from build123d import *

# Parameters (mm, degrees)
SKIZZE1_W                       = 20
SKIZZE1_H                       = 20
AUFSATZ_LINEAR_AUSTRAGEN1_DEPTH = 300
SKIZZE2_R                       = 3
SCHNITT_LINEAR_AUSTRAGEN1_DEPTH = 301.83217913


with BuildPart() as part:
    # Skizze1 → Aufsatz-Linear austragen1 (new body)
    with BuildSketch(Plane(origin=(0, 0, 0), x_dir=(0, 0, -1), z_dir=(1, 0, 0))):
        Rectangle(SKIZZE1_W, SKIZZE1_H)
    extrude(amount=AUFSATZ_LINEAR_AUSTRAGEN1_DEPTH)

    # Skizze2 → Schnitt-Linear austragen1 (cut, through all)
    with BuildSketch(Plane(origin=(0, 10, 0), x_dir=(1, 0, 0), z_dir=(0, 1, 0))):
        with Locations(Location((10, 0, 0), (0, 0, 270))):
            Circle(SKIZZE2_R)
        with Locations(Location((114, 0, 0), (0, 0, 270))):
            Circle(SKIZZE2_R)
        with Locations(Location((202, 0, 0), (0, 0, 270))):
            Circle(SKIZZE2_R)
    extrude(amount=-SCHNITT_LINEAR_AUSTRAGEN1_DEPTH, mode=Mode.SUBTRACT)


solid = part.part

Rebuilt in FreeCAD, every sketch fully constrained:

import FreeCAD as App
import Part
import Sketcher
Q = App.Units.Quantity


def add_polygon(sketch, points):
    """Adds a closed chain of lines whose ends are joined by coincident constraints."""
    first, n = sketch.GeometryCount, len(points)
    for a, b in zip(points, points[1:] + points[:1]):
        sketch.addGeometry(Part.LineSegment(App.Vector(*a, 0), App.Vector(*b, 0)), False)
    for i in range(n):
        sketch.addConstraint(Sketcher.Constraint("Coincident", first + i, 2, first + (i + 1) % n, 1))

doc = App.newDocument("Part")
body = doc.addObject("PartDesign::Body", "Body")

sketch1 = body.newObject("Sketcher::SketchObject", "Sketch")
sketch1.AttachmentSupport = (doc.getObject("YZ_Plane"), [""])
sketch1.MapMode = "FlatFace"
add_polygon(sketch1, [(10, 10), (-10, 10), (-10, -10), (10, -10)])
sketch1.addConstraint([
    Sketcher.Constraint("Horizontal", 0),
    Sketcher.Constraint("Vertical", 1),
    Sketcher.Constraint("Horizontal", 2),
    Sketcher.Constraint("Vertical", 3),
    Sketcher.Constraint("Symmetric", 0, 2, 2, 2, -1, 1),
    Sketcher.Constraint("Equal", 2, 1),
    Sketcher.Constraint("DistanceX", 0, 2, 0, 1, Q("20 mm")),
])
pad1 = body.newObject("PartDesign::Pad", "Pad")
pad1.Profile = sketch1
pad1.Length = 300

sketch2 = body.newObject("Sketcher::SketchObject", "Sketch001")
sketch2.AttachmentSupport = (doc.getObject("XZ_Plane"), [""])
sketch2.MapMode = "FlatFace"
sketch2.AttachmentOffset = App.Placement(App.Vector(0, 0, -10), App.Rotation())
sketch2.addGeometry([
    Part.Circle(App.Vector(10, 0, 0), App.Vector(0, 0, 1), 3),
    Part.Circle(App.Vector(114, 0, 0), App.Vector(0, 0, 1), 3),
    Part.Circle(App.Vector(202, 0, 0), App.Vector(0, 0, 1), 3),
], False)
sketch2.addConstraint([
    Sketcher.Constraint("Equal", 0, 1),
    Sketcher.Constraint("Equal", 1, 2),
    Sketcher.Constraint("PointOnObject", 0, 3, -1),
    Sketcher.Constraint("PointOnObject", 1, 3, -1),
    Sketcher.Constraint("PointOnObject", 2, 3, -1),
    Sketcher.Constraint("Diameter", 0, Q("6 mm")),
    Sketcher.Constraint("DistanceX", -1, 1, 0, 3, Q("10 mm")),
    Sketcher.Constraint("DistanceX", -1, 1, 1, 3, Q("114 mm")),
    Sketcher.Constraint("DistanceX", -1, 1, 2, 3, Q("202 mm")),
])
pocket1 = body.newObject("PartDesign::Pocket", "Pocket")
pocket1.Profile = sketch2
pocket1.Type = "ThroughAll"
pocket1.Reversed = True

doc.recompute()
